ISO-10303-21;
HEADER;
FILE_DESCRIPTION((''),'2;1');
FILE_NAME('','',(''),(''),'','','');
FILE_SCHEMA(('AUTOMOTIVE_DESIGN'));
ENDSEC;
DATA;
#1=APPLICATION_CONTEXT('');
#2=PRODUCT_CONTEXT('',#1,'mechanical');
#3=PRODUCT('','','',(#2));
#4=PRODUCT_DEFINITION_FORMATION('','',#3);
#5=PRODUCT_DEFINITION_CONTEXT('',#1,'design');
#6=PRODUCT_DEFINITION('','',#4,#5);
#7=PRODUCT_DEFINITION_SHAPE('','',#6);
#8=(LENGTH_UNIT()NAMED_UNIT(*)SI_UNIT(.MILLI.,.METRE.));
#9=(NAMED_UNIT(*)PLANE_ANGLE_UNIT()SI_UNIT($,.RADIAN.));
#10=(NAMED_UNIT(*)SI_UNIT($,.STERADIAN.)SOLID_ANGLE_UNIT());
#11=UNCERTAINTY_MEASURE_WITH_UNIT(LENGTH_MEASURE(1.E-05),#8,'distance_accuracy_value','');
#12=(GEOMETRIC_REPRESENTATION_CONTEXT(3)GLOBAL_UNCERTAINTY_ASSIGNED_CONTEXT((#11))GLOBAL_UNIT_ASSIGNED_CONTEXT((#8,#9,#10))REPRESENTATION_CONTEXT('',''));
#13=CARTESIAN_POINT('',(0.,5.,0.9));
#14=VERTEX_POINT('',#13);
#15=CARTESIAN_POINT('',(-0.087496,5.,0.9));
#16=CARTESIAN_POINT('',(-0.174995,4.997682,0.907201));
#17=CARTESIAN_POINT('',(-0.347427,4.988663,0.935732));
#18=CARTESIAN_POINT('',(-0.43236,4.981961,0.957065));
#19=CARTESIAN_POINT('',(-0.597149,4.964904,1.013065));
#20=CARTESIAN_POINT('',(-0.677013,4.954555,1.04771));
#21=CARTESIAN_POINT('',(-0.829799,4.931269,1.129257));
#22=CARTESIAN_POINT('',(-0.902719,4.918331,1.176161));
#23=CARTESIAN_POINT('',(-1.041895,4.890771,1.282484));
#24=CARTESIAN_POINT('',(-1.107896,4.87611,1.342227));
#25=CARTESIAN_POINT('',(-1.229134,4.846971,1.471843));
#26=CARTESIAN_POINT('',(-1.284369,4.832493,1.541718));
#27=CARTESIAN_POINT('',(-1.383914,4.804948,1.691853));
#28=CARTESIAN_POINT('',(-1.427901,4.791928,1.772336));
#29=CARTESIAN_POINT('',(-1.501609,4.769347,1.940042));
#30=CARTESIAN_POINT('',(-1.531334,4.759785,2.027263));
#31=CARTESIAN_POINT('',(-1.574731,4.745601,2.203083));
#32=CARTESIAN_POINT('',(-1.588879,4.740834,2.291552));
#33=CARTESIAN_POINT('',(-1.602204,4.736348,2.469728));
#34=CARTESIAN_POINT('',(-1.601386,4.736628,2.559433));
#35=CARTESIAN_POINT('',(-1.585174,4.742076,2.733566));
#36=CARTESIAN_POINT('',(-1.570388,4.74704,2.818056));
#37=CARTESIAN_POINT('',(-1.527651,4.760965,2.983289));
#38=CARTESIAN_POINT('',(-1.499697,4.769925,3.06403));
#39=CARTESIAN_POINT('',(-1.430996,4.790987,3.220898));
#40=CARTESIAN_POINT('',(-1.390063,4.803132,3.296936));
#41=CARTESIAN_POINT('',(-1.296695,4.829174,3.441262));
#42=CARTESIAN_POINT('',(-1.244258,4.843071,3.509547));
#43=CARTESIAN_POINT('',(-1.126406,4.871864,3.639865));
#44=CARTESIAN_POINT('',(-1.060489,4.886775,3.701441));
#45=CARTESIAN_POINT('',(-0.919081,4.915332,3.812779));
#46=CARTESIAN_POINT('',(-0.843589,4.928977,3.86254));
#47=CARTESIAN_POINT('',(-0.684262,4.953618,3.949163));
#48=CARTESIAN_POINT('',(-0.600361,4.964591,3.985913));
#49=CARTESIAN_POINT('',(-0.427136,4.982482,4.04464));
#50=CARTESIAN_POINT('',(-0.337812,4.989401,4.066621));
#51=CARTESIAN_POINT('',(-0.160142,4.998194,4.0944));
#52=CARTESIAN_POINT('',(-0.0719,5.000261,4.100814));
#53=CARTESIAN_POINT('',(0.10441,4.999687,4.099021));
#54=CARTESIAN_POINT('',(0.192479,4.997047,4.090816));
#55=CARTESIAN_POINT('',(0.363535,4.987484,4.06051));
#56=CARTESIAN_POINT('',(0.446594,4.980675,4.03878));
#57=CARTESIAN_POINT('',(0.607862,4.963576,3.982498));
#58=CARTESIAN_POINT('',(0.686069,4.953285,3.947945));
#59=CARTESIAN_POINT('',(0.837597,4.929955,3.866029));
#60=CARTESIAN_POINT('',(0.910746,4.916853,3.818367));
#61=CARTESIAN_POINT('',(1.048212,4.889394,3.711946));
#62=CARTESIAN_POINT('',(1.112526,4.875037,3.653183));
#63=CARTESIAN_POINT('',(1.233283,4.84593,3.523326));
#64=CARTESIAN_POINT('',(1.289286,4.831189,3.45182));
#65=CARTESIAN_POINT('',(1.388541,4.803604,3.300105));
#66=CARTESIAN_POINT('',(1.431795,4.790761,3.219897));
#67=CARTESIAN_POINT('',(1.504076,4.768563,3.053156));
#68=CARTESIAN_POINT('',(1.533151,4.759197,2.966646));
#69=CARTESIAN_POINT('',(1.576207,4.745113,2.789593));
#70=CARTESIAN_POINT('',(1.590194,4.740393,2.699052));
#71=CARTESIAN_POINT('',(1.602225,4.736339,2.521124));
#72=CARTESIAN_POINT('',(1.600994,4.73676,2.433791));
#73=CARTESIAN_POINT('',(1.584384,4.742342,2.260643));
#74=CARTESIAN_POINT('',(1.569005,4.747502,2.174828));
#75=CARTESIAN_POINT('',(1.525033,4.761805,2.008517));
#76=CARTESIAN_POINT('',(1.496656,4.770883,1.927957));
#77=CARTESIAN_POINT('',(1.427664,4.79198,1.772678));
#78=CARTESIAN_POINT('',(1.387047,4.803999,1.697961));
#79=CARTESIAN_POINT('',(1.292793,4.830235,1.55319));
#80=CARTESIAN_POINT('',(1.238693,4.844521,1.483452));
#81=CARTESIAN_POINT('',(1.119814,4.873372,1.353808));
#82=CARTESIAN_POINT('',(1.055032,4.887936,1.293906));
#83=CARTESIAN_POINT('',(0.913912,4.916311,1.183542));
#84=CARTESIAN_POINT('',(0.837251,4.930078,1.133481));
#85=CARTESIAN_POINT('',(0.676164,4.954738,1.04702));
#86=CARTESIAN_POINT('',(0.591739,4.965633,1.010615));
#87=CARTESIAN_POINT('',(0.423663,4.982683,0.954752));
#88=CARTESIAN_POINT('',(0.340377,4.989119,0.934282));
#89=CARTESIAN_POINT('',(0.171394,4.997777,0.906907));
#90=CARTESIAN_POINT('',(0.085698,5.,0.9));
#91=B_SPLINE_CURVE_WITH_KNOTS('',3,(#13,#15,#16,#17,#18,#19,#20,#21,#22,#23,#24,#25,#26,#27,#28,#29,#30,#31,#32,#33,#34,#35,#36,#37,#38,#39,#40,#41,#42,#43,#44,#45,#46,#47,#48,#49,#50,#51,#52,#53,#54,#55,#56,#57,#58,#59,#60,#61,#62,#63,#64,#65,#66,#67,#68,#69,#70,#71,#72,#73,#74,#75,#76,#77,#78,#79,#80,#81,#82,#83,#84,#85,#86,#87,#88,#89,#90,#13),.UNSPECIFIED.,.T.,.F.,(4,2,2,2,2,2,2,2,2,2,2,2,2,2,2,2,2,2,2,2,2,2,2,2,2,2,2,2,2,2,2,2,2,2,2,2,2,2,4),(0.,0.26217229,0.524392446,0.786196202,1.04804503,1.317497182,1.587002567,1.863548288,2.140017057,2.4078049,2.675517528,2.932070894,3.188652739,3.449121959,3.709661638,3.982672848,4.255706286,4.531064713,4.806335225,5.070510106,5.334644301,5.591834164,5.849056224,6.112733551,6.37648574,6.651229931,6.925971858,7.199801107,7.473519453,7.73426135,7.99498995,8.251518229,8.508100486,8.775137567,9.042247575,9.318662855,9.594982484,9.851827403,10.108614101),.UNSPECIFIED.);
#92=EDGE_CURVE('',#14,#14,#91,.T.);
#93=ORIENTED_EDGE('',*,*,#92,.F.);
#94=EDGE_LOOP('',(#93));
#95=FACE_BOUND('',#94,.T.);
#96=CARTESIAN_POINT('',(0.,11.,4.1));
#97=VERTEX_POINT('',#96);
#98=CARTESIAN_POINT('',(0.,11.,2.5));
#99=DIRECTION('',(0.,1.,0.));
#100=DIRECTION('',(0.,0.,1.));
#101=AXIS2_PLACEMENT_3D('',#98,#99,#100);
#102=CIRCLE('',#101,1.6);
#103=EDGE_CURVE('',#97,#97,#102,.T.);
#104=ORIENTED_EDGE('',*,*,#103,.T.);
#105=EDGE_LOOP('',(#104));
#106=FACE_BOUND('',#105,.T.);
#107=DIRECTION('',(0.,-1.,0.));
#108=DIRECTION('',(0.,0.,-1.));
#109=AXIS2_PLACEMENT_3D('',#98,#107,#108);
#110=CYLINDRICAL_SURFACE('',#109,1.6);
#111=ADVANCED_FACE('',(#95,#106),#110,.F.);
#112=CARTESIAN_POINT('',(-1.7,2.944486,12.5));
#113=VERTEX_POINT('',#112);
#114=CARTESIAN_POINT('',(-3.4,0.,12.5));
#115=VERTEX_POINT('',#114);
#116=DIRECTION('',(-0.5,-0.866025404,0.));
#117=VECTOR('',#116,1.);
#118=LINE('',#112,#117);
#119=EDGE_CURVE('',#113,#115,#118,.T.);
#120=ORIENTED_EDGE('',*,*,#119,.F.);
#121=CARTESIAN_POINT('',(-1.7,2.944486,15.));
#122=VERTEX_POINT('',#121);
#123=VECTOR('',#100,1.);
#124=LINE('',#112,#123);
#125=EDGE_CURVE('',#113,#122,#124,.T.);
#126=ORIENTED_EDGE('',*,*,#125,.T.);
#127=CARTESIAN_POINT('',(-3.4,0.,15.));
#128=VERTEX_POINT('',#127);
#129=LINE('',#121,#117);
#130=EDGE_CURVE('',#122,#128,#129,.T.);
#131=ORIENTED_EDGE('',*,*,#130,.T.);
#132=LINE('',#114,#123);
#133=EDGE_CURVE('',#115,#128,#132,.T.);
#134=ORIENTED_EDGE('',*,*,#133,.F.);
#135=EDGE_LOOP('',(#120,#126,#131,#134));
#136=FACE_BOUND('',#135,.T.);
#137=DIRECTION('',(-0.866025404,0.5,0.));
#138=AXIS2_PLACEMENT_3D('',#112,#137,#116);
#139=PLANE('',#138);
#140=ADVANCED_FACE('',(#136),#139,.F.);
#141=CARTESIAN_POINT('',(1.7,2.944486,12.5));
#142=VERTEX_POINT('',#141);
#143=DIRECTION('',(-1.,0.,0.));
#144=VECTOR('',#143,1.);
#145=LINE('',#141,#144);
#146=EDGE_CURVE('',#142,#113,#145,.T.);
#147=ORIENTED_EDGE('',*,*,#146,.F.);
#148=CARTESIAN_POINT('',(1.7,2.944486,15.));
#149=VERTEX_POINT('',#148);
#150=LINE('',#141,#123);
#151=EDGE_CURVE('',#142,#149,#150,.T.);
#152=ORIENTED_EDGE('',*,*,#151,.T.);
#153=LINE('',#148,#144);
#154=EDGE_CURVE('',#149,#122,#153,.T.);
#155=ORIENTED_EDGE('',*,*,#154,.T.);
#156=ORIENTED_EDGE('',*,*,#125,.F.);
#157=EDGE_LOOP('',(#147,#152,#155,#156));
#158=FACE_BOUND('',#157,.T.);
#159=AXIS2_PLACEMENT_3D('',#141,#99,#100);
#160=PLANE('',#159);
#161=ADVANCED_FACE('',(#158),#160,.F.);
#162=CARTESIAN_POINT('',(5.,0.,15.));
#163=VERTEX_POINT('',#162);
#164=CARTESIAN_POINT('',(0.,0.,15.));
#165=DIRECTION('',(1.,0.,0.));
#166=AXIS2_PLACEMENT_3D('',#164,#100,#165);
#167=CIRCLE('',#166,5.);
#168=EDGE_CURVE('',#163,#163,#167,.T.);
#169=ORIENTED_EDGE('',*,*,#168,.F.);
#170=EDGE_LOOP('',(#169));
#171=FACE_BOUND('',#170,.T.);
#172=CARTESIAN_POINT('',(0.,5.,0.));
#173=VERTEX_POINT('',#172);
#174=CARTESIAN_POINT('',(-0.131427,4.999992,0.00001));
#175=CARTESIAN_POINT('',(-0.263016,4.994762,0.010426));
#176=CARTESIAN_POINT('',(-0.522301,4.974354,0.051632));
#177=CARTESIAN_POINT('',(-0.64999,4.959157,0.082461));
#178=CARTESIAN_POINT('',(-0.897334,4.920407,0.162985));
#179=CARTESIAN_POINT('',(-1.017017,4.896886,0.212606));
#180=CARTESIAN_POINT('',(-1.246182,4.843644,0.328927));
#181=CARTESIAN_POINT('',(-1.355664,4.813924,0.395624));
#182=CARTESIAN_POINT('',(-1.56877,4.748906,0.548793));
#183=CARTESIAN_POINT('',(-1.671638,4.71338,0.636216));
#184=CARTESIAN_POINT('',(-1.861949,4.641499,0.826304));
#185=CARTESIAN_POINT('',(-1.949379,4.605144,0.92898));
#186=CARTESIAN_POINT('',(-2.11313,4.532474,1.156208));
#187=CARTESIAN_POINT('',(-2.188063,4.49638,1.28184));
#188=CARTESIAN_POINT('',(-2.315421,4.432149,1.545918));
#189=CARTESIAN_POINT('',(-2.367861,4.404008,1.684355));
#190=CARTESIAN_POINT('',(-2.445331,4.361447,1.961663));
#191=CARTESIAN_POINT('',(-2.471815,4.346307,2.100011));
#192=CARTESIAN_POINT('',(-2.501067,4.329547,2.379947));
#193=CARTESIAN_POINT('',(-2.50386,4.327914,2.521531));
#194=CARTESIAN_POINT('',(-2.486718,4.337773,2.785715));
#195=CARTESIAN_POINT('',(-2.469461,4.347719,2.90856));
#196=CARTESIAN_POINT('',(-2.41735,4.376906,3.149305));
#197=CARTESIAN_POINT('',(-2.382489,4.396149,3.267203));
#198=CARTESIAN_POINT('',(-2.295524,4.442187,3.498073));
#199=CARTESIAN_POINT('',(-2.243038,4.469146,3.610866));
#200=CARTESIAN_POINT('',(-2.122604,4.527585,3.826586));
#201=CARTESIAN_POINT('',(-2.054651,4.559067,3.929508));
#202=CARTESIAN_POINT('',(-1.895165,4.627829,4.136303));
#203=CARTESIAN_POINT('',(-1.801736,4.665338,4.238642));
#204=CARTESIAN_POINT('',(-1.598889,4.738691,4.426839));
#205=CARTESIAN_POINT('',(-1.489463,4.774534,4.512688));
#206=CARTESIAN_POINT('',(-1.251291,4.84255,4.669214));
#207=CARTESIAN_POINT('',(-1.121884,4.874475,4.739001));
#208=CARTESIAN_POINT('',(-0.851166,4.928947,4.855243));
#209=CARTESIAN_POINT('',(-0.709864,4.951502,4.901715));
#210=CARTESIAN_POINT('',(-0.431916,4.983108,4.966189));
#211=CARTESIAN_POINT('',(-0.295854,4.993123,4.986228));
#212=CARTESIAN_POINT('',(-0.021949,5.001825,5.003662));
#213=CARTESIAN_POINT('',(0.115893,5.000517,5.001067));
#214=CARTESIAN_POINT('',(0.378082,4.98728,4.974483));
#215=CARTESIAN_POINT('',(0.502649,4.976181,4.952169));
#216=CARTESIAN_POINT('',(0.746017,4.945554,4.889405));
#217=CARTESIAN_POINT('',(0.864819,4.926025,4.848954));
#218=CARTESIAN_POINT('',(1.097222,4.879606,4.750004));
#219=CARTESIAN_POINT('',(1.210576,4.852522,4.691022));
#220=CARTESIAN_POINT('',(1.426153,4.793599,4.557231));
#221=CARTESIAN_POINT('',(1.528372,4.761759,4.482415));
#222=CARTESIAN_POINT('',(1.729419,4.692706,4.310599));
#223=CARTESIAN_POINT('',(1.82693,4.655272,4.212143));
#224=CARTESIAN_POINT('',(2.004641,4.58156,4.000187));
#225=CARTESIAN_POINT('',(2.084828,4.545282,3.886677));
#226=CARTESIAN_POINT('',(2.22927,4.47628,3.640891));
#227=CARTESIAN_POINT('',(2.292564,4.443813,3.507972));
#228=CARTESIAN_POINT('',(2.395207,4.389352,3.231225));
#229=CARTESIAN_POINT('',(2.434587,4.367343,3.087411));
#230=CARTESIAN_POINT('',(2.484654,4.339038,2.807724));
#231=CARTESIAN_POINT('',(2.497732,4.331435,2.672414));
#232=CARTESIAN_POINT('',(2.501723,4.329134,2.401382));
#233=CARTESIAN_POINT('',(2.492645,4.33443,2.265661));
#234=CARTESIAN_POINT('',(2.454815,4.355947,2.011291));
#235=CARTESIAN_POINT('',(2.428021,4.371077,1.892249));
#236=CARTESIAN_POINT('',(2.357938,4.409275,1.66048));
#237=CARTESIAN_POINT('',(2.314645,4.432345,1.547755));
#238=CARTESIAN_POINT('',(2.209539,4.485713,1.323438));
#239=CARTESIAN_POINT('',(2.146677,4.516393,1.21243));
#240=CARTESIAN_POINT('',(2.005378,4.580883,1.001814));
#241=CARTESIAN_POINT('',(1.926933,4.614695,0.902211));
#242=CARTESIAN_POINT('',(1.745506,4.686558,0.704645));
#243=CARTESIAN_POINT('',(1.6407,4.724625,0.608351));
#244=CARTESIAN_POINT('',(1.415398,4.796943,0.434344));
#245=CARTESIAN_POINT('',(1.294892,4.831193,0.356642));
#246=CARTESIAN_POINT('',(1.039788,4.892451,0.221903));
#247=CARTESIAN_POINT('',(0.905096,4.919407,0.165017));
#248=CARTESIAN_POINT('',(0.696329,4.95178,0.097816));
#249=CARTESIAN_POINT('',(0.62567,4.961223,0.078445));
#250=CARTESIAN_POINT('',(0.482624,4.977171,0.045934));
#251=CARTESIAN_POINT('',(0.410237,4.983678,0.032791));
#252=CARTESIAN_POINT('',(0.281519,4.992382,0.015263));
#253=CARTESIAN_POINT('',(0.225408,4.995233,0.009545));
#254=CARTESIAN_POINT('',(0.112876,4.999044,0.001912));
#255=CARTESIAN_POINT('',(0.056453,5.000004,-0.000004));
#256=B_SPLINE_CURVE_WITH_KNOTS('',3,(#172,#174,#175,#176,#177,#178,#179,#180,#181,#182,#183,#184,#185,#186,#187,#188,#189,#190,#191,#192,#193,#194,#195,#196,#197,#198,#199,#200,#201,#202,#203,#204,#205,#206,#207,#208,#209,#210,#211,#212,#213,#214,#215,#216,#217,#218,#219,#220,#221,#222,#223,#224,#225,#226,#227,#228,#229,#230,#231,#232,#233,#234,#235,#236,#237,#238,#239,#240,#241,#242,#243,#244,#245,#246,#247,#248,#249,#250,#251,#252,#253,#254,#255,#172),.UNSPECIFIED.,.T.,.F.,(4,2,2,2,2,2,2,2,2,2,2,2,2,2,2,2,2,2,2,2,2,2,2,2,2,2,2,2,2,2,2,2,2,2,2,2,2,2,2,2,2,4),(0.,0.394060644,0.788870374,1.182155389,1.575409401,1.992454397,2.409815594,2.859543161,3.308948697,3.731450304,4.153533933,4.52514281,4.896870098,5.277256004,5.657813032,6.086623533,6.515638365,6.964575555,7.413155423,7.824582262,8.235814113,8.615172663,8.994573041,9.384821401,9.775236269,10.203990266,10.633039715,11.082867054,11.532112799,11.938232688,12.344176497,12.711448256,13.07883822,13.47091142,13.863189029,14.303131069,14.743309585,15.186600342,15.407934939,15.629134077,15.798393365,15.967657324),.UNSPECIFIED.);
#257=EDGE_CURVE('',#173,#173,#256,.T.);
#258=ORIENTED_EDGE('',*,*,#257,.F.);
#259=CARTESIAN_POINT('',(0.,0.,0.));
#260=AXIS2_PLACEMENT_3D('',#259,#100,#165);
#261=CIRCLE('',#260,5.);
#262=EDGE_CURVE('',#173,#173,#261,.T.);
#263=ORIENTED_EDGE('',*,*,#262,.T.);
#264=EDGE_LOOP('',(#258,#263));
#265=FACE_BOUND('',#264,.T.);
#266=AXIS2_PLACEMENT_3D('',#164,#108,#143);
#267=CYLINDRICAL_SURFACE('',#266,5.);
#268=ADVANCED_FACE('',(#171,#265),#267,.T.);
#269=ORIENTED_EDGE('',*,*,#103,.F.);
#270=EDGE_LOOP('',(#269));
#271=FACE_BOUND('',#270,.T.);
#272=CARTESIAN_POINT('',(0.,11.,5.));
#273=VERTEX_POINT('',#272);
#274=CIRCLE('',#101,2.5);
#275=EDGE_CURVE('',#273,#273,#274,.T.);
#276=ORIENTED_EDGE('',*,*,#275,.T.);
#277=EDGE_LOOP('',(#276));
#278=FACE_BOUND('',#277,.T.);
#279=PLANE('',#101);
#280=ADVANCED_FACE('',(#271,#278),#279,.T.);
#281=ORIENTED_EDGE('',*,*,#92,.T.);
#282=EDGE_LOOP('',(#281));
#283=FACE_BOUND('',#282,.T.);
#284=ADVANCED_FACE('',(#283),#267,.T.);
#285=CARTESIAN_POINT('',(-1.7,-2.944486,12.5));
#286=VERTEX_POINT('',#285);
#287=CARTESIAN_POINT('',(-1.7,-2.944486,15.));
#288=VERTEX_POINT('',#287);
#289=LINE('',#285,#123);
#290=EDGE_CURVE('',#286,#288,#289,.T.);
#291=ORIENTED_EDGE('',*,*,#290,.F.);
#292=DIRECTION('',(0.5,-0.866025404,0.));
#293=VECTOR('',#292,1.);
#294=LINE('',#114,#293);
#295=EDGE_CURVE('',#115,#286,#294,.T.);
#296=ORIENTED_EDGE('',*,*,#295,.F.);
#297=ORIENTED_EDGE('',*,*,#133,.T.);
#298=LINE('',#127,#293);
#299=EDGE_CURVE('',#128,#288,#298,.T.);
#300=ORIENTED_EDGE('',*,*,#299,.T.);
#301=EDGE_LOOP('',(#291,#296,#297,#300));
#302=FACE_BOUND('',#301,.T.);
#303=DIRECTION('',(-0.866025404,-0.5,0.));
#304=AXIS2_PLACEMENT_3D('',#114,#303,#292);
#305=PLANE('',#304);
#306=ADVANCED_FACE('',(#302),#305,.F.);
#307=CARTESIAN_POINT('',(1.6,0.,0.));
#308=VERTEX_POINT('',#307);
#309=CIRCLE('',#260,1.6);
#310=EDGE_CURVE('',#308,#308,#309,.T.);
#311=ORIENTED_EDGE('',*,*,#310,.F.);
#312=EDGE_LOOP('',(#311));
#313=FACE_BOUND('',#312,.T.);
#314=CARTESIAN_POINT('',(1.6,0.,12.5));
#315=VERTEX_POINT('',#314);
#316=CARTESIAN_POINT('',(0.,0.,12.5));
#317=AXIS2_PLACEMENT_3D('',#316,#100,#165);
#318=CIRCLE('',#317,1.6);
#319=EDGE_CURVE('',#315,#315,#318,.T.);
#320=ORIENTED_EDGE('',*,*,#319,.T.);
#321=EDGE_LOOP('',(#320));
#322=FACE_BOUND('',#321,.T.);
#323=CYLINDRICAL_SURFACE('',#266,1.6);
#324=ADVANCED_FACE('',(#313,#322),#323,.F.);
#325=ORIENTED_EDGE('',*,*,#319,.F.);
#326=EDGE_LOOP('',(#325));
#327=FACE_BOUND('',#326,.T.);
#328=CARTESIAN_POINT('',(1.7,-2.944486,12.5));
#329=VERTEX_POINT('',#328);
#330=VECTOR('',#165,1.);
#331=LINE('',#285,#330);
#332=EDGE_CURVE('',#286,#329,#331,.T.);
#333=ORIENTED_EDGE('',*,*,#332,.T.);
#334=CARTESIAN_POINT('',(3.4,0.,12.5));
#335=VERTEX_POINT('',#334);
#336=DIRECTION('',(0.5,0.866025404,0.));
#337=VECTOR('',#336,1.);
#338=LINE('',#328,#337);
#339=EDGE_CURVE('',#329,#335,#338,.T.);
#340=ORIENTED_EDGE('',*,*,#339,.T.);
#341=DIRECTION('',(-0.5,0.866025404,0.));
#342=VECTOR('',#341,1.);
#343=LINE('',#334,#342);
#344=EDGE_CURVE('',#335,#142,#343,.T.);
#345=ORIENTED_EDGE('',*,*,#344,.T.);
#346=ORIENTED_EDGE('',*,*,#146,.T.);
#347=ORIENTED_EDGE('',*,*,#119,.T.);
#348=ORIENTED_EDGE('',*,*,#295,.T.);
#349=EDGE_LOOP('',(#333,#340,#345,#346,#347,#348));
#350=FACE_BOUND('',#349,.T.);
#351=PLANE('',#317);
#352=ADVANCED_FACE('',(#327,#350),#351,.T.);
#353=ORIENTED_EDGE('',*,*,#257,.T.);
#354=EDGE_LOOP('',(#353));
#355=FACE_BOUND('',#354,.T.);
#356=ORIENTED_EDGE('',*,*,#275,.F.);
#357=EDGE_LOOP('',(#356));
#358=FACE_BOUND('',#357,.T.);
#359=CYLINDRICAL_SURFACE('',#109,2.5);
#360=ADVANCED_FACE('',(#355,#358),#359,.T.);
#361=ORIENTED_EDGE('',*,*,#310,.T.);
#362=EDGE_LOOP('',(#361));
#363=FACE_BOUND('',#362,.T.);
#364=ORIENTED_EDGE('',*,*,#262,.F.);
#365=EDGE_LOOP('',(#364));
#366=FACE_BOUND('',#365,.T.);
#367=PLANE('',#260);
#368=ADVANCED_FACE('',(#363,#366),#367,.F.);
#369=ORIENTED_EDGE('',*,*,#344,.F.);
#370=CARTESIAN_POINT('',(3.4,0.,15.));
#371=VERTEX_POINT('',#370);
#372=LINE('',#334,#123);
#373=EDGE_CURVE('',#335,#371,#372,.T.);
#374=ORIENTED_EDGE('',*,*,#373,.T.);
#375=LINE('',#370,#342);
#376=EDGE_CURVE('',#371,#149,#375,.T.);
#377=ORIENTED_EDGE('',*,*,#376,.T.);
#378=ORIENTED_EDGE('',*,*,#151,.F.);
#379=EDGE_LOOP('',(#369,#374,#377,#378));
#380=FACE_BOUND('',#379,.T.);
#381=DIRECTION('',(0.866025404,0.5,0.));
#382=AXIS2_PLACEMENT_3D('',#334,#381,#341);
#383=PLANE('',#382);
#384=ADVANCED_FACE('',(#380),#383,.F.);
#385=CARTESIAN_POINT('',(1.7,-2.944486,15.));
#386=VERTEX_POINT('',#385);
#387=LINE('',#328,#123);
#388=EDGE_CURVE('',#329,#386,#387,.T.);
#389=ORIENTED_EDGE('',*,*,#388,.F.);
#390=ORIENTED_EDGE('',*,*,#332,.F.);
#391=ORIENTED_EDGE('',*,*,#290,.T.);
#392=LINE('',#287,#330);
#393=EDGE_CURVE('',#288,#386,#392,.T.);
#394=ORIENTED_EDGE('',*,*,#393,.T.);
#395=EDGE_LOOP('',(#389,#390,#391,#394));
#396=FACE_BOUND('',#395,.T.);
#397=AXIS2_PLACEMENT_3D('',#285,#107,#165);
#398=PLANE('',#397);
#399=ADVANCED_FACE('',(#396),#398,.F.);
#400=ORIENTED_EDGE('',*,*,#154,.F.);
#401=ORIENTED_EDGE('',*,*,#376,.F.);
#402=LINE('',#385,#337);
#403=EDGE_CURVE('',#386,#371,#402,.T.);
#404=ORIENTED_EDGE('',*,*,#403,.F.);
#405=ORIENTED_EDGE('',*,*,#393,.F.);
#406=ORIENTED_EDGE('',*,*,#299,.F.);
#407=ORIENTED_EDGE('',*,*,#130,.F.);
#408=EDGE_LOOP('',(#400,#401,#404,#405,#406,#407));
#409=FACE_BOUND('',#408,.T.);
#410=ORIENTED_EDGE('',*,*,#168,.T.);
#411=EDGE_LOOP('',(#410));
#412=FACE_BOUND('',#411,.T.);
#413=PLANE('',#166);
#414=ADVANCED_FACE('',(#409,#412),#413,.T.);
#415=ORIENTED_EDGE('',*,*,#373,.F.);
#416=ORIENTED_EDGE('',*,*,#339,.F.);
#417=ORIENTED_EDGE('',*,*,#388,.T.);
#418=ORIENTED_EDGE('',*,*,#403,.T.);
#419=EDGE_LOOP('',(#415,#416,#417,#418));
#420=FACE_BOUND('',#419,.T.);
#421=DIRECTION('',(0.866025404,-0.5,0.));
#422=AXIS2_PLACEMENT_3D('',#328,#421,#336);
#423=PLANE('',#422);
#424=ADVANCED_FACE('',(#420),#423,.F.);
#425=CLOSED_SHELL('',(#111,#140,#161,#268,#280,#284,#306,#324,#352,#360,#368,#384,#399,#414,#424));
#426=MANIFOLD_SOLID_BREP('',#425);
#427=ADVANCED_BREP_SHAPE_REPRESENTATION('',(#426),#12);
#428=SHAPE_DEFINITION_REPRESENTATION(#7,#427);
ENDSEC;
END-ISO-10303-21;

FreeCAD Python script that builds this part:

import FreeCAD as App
import Part
import Sketcher

V = App.Vector
Q = App.Units.Quantity


def add_polygon(sketch, points):
    """Adds a closed chain of lines whose ends are joined by coincident constraints."""
    first, n = sketch.GeometryCount, len(points)
    for a, b in zip(points, points[1:] + points[:1]):
        sketch.addGeometry(Part.LineSegment(App.Vector(*a, 0), App.Vector(*b, 0)), False)
    for i in range(n):
        sketch.addConstraint(Sketcher.Constraint("Coincident", first + i, 2, first + (i + 1) % n, 1))

doc = App.newDocument("Part")
body = doc.addObject("PartDesign::Body", "Body")

# Sketch on XY plane
sketch1 = body.newObject("Sketcher::SketchObject", "Sketch")
sketch1.AttachmentSupport = (doc.getObject("XY_Plane"), [""])
sketch1.MapMode = "FlatFace"
sketch1.addGeometry([
    Part.Circle(V(0, 0, 0), V(0, 0, 1), 5),
    Part.Circle(V(0, 0, 0), V(0, 0, 1), 1.6),
], False)
sketch1.addConstraint([
    Sketcher.Constraint("Coincident", 0, 3, -1, 1),
    Sketcher.Constraint("Coincident", 1, 3, -1, 1),
    Sketcher.Constraint("Diameter", 0, 10.0),
    Sketcher.Constraint("Diameter", 1, 3.2),
])
pad1 = body.newObject("PartDesign::Pad", "Pad")
pad1.Profile = sketch1
pad1.Length = 15

# Sketch on XY plane
sketch2 = body.newObject("Sketcher::SketchObject", "Sketch001")
sketch2.AttachmentSupport = (doc.getObject("XY_Plane"), [""])
sketch2.MapMode = "FlatFace"
sketch2.AttachmentOffset = App.Placement(V(0, 0, 15), App.Rotation())
add_polygon(sketch2, [(3.4, 0), (1.7, 2.9), (-1.7, 2.9), (-3.4, 0), (-1.7, -2.9), (1.7, -2.9)])  # lines 0-5
sketch2.addConstraint([
    Sketcher.Constraint("Horizontal", 1),
    Sketcher.Constraint("Horizontal", 4),
    Sketcher.Constraint("Symmetric", 0, 2, 3, 2, -1, 1),
    Sketcher.Constraint("Symmetric", 2, 2, 5, 2, -1, 1),
    Sketcher.Constraint("PointOnObject", 2, 2, -1),
    Sketcher.Constraint("Parallel", 2, 5),
    Sketcher.Constraint("Vertical", 1, 2, 3, 2),
    Sketcher.Constraint("Angle", 0, Q("120 deg")),
    Sketcher.Constraint("DistanceX", 1, 2, 1, 1, 3.4),
    Sketcher.Constraint("Distance", 0, 3.4),
])
pocket1 = body.newObject("PartDesign::Pocket", "Pocket")
pocket1.Profile = sketch2
pocket1.Length = 2.5

# Sketch on XZ plane
sketch3 = body.newObject("Sketcher::SketchObject", "Sketch002")
sketch3.AttachmentSupport = (doc.getObject("XZ_Plane"), [""])
sketch3.MapMode = "FlatFace"
sketch3.AttachmentOffset = App.Placement(V(0, 0, -4), App.Rotation())
sketch3.addGeometry([
    Part.Circle(V(0, 2.5, 0), V(0, 0, 1), 2.5),
    Part.Circle(V(0, 2.5, 0), V(0, 0, 1), 1.6),
], False)
sketch3.addConstraint([
    Sketcher.Constraint("Coincident", 1, 3, 0, 3),
    Sketcher.Constraint("PointOnObject", 0, 3, -2),
    Sketcher.Constraint("Diameter", 0, 5.0),
    Sketcher.Constraint("Diameter", 1, 3.2),
    Sketcher.Constraint("DistanceY", -1, 1, 0, 3, 2.5),
])
pad2 = body.newObject("PartDesign::Pad", "Pad001")
pad2.Profile = sketch3
pad2.Length = 7
pad2.Reversed = True

doc.recompute()
